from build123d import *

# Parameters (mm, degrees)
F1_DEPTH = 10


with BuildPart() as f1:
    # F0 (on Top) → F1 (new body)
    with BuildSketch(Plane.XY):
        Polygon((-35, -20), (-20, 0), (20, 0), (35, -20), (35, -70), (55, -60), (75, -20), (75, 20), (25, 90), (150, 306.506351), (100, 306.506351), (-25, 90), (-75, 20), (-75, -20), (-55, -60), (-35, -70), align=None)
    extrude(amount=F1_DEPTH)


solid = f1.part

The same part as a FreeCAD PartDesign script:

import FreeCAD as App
import Part
import Sketcher
from FreeCAD import Vector
Q = App.Units.Quantity


def add_polygon(sketch, points):
    """Adds a closed chain of lines whose ends are joined by coincident constraints."""
    first, n = sketch.GeometryCount, len(points)
    for a, b in zip(points, points[1:] + points[:1]):
        sketch.addGeometry(Part.LineSegment(App.Vector(*a, 0), App.Vector(*b, 0)), False)
    for i in range(n):
        sketch.addConstraint(Sketcher.Constraint("Coincident", first + i, 2, first + (i + 1) % n, 1))

doc = App.newDocument("Part")
body = doc.addObject("PartDesign::Body", "Body")

# Sketch on XY plane
sketch1 = body.newObject("Sketcher::SketchObject", "Sketch")
sketch1.AttachmentSupport = (doc.getObject("XY_Plane"), [""])
sketch1.MapMode = "FlatFace"
add_polygon(sketch1, [(-35, -20), (-20, 0), (20, 0), (35, -20), (35, -70), (55, -60), (75, -20), (75, 20), (25, 90), (150, 307), (100, 307), (-25, 90), (-75, 20), (-75, -20), (-55, -60), (-35, -70)])  # lines 0-15
sketch1.addConstraint(Sketcher.Constraint("Horizontal", 1))
sketch1.addConstraint(Sketcher.Constraint("Vertical", 3))
sketch1.addConstraint(Sketcher.Constraint("Vertical", 6))
sketch1.addConstraint(Sketcher.Constraint("Horizontal", 9))
sketch1.addConstraint(Sketcher.Constraint("Vertical", 12))
sketch1.addConstraint(Sketcher.Constraint("Vertical", 15))
sketch1.addConstraint(Sketcher.Constraint("Symmetric", 0, 2, 1, 2, -1, 1))
sketch1.addConstraint(Sketcher.Constraint("Symmetric", 5, 2, 11, 2, -1, 1))
sketch1.addConstraint(Sketcher.Constraint("Symmetric", 7, 2, 10, 2, -2))
sketch1.addConstraint(Sketcher.Constraint("Symmetric", 4, 2, 13, 2, -2))
sketch1.addConstraint(Sketcher.Constraint("Symmetric", 3, 2, 14, 2, -2))
sketch1.addConstraint(Sketcher.Constraint("Parallel", 8, 10))
sketch1.addConstraint(Sketcher.Constraint("Perpendicular", 4, 13))
sketch1.addConstraint(Sketcher.Constraint("Perpendicular", 5, 14))
sketch1.addConstraint(Sketcher.Constraint("Horizontal", 2, 2, 5, 2))
sketch1.addConstraint(Sketcher.Constraint("Horizontal", 6, 2, 11, 2))
sketch1.addConstraint(Sketcher.Constraint("Horizontal", 12, 2, 15, 2))
sketch1.addConstraint(Sketcher.Constraint("Equal", 9, 3))
sketch1.addConstraint(Sketcher.Constraint("Equal", 1, 6))
sketch1.addConstraint(Sketcher.Constraint("DistanceX", 1, 1, 1, 2, 40.0))
sketch1.addConstraint(Sketcher.Constraint("DistanceX", 9, 2, 9, 1, 50.0))
sketch1.addConstraint(Sketcher.Constraint("Angle", 8, Q("60 deg")))
sketch1.addConstraint(Sketcher.Constraint("Distance", 0, 25.0))
sketch1.addConstraint(Sketcher.Constraint("Distance", 8, 250.0))
sketch1.addConstraint(Sketcher.Constraint("DistanceX", -1, 1, 4, 2, 55.0))
sketch1.addConstraint(Sketcher.Constraint("DistanceY", 4, 2, -1, 1, 60.0))
sketch1.addConstraint(Sketcher.Constraint("DistanceY", -1, 1, 7, 2, 90.0))
pad1 = body.newObject("PartDesign::Pad", "Pad")
pad1.Profile = sketch1
pad1.Length = 10

doc.recompute()
